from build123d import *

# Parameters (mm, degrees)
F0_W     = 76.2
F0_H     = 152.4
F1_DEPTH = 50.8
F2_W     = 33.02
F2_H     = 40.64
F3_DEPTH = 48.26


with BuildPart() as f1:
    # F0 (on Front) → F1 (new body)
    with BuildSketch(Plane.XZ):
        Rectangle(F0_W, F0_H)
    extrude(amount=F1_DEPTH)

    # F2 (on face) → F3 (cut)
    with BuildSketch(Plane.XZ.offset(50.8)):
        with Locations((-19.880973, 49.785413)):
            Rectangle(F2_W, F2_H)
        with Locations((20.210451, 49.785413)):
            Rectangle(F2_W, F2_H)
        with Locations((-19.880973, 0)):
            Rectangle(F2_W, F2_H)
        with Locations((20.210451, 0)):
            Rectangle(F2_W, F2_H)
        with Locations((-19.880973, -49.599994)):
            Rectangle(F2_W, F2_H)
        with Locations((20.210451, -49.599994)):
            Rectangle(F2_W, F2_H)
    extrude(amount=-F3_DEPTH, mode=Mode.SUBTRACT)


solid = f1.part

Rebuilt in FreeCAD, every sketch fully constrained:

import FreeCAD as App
import Part
import Sketcher
from FreeCAD import Vector
Q = App.Units.Quantity

doc = App.newDocument("Part")
body = doc.addObject("PartDesign::Body", "Body")

# Sketch on XZ plane
sketch1 = doc.addObject("Sketcher::SketchObject", "Sketch")
body.addObject(sketch1)
sketch1.AttachmentSupport = (doc.XZ_Plane, [""])
sketch1.MapMode = "FlatFace"
sketch1.addGeometry([
    Part.LineSegment(Vector(-38, 76, 0), Vector(-38, -76, 0)),
    Part.LineSegment(Vector(-38, -76, 0), Vector(38, -76, 0)),
    Part.LineSegment(Vector(38, -76, 0), Vector(38, 76, 0)),
    Part.LineSegment(Vector(38, 76, 0), Vector(-38, 76, 0)),
], False)
sketch1.addConstraint([
    Sketcher.Constraint("Coincident", 0, 2, 1, 1),
    Sketcher.Constraint("Coincident", 1, 2, 2, 1),
    Sketcher.Constraint("Coincident", 2, 2, 3, 1),
    Sketcher.Constraint("Coincident", 3, 2, 0, 1),
    Sketcher.Constraint("Vertical", 0),
    Sketcher.Constraint("Horizontal", 1),
    Sketcher.Constraint("Vertical", 2),
    Sketcher.Constraint("Horizontal", 3),
    Sketcher.Constraint("Symmetric", 0, 2, 2, 2, -1, 1),
    Sketcher.Constraint("DistanceX", 1, 1, 1, 2, Q("3 in")),
    Sketcher.Constraint("DistanceY", 0, 2, 0, 1, Q("6 in")),
])
pad1 = doc.addObject("PartDesign::Pad", "Pad")
body.addObject(pad1)
pad1.Profile = sketch1
pad1.Length = Q("2 in")

# Sketch on XZ plane
sketch2 = doc.addObject("Sketcher::SketchObject", "Sketch001")
body.addObject(sketch2)
sketch2.AttachmentSupport = (doc.XZ_Plane, [""])
sketch2.MapMode = "FlatFace"
sketch2.AttachmentOffset = App.Placement(Vector(0, 0, 2 * 25.4), App.Rotation())
sketch2.addGeometry([
    Part.LineSegment(Vector(-36, 70, 0), Vector(-36, 29, 0)),  # 0
    Part.LineSegment(Vector(-36, 29, 0), Vector(-3, 29, 0)),  # 1
    Part.LineSegment(Vector(-3, 29, 0), Vector(-3, 70, 0)),  # 2
    Part.LineSegment(Vector(-3, 70, 0), Vector(-36, 70, 0)),  # 3
    Part.LineSegment(Vector(4, 70, 0), Vector(4, 29, 0)),  # 4
    Part.LineSegment(Vector(4, 29, 0), Vector(37, 29, 0)),  # 5
    Part.LineSegment(Vector(37, 29, 0), Vector(37, 70, 0)),  # 6
    Part.LineSegment(Vector(37, 70, 0), Vector(4, 70, 0)),  # 7
    Part.LineSegment(Vector(-36, 20, 0), Vector(-36, -20, 0)),  # 8
    Part.LineSegment(Vector(-36, -20, 0), Vector(-3, -20, 0)),  # 9
    Part.LineSegment(Vector(-3, -20, 0), Vector(-3, 20, 0)),  # 10
    Part.LineSegment(Vector(-3, 20, 0), Vector(-36, 20, 0)),  # 11
    Part.LineSegment(Vector(4, 20, 0), Vector(4, -20, 0)),  # 12
    Part.LineSegment(Vector(4, -20, 0), Vector(37, -20, 0)),  # 13
    Part.LineSegment(Vector(37, -20, 0), Vector(37, 20, 0)),  # 14
    Part.LineSegment(Vector(37, 20, 0), Vector(4, 20, 0)),  # 15
    Part.LineSegment(Vector(-36, -29, 0), Vector(-36, -70, 0)),  # 16
    Part.LineSegment(Vector(-36, -70, 0), Vector(-3, -70, 0)),  # 17
    Part.LineSegment(Vector(-3, -70, 0), Vector(-3, -29, 0)),  # 18
    Part.LineSegment(Vector(-3, -29, 0), Vector(-36, -29, 0)),  # 19
    Part.LineSegment(Vector(4, -29, 0), Vector(4, -70, 0)),  # 20
    Part.LineSegment(Vector(4, -70, 0), Vector(37, -70, 0)),  # 21
    Part.LineSegment(Vector(37, -70, 0), Vector(37, -29, 0)),  # 22
    Part.LineSegment(Vector(37, -29, 0), Vector(4, -29, 0)),  # 23
], False)
sketch2.addConstraint([
    Sketcher.Constraint("Coincident", 0, 2, 1, 1),
    Sketcher.Constraint("Coincident", 1, 2, 2, 1),
    Sketcher.Constraint("Coincident", 2, 2, 3, 1),
    Sketcher.Constraint("Coincident", 3, 2, 0, 1),
    Sketcher.Constraint("Coincident", 4, 2, 5, 1),
    Sketcher.Constraint("Coincident", 5, 2, 6, 1),
    Sketcher.Constraint("Coincident", 6, 2, 7, 1),
    Sketcher.Constraint("Coincident", 7, 2, 4, 1),
    Sketcher.Constraint("Coincident", 8, 2, 9, 1),
    Sketcher.Constraint("Coincident", 9, 2, 10, 1),
    Sketcher.Constraint("Coincident", 10, 2, 11, 1),
    Sketcher.Constraint("Coincident", 11, 2, 8, 1),
    Sketcher.Constraint("Coincident", 12, 2, 13, 1),
    Sketcher.Constraint("Coincident", 13, 2, 14, 1),
    Sketcher.Constraint("Coincident", 14, 2, 15, 1),
    Sketcher.Constraint("Coincident", 15, 2, 12, 1),
    Sketcher.Constraint("Coincident", 16, 2, 17, 1),
    Sketcher.Constraint("Coincident", 17, 2, 18, 1),
    Sketcher.Constraint("Coincident", 18, 2, 19, 1),
    Sketcher.Constraint("Coincident", 19, 2, 16, 1),
    Sketcher.Constraint("Coincident", 20, 2, 21, 1),
    Sketcher.Constraint("Coincident", 21, 2, 22, 1),
    Sketcher.Constraint("Coincident", 22, 2, 23, 1),
    Sketcher.Constraint("Coincident", 23, 2, 20, 1),
    Sketcher.Constraint("Vertical", 0),
    Sketcher.Constraint("Horizontal", 1),
    Sketcher.Constraint("Vertical", 2),
    Sketcher.Constraint("Horizontal", 3),
    Sketcher.Constraint("Vertical", 4),
    Sketcher.Constraint("Horizontal", 5),
    Sketcher.Constraint("Vertical", 6),
    Sketcher.Constraint("Horizontal", 7),
    Sketcher.Constraint("Vertical", 8),
    Sketcher.Constraint("Horizontal", 9),
    Sketcher.Constraint("Vertical", 10),
    Sketcher.Constraint("Horizontal", 11),
    Sketcher.Constraint("Vertical", 12),
    Sketcher.Constraint("Horizontal", 13),
    Sketcher.Constraint("Vertical", 14),
    Sketcher.Constraint("Horizontal", 15),
    Sketcher.Constraint("Vertical", 16),
    Sketcher.Constraint("Horizontal", 17),
    Sketcher.Constraint("Vertical", 18),
    Sketcher.Constraint("Horizontal", 19),
    Sketcher.Constraint("Vertical", 20),
    Sketcher.Constraint("Horizontal", 21),
    Sketcher.Constraint("Vertical", 22),
    Sketcher.Constraint("Horizontal", 23),
    Sketcher.Constraint("Horizontal", 1, 2, 4, 2),
    Sketcher.Constraint("Horizontal", 3, 2, 6, 2),
    Sketcher.Constraint("Horizontal", 9, 2, 12, 2),
    Sketcher.Constraint("Horizontal", 11, 2, 14, 2),
    Sketcher.Constraint("Horizontal", 17, 2, 20, 2),
    Sketcher.Constraint("Horizontal", 19, 2, 22, 2),
    Sketcher.Constraint("Vertical", 3, 2, 8, 2),
    Sketcher.Constraint("Vertical", 2, 2, 9, 2),
    Sketcher.Constraint("Vertical", 7, 2, 12, 2),
    Sketcher.Constraint("Vertical", 6, 2, 13, 2),
    Sketcher.Constraint("Vertical", 11, 2, 16, 2),
    Sketcher.Constraint("Vertical", 10, 2, 17, 2),
    Sketcher.Constraint("Vertical", 15, 2, 20, 2),
    Sketcher.Constraint("Vertical", 14, 2, 21, 2),
    Sketcher.Constraint("Equal", 3, 5),
    Sketcher.Constraint("Equal", 6, 8),
    Sketcher.Constraint("Equal", 14, 16),
    Sketcher.Constraint("DistanceX", 1, 1, 1, 2, Q("1.3 in")),
    Sketcher.Constraint("DistanceY", 0, 2, 0, 1, Q("1.6 in")),
    Sketcher.Constraint("DistanceY", 8, 2, -1, 1, Q("0.8 in")),
    Sketcher.Constraint("DistanceX", -1, 1, 4, 2, 3.700451),
    Sketcher.Constraint("DistanceX", 0, 2, -1, 1, 36.390973),
    Sketcher.Constraint("DistanceY", -1, 1, 0, 2, 29.465413),
    Sketcher.Constraint("DistanceY", 16, 2, -1, 1, 69.919994),
])
pocket1 = doc.addObject("PartDesign::Pocket", "Pocket")
body.addObject(pocket1)
pocket1.Profile = sketch2
pocket1.Length = Q("1.9 in")

doc.recompute()
